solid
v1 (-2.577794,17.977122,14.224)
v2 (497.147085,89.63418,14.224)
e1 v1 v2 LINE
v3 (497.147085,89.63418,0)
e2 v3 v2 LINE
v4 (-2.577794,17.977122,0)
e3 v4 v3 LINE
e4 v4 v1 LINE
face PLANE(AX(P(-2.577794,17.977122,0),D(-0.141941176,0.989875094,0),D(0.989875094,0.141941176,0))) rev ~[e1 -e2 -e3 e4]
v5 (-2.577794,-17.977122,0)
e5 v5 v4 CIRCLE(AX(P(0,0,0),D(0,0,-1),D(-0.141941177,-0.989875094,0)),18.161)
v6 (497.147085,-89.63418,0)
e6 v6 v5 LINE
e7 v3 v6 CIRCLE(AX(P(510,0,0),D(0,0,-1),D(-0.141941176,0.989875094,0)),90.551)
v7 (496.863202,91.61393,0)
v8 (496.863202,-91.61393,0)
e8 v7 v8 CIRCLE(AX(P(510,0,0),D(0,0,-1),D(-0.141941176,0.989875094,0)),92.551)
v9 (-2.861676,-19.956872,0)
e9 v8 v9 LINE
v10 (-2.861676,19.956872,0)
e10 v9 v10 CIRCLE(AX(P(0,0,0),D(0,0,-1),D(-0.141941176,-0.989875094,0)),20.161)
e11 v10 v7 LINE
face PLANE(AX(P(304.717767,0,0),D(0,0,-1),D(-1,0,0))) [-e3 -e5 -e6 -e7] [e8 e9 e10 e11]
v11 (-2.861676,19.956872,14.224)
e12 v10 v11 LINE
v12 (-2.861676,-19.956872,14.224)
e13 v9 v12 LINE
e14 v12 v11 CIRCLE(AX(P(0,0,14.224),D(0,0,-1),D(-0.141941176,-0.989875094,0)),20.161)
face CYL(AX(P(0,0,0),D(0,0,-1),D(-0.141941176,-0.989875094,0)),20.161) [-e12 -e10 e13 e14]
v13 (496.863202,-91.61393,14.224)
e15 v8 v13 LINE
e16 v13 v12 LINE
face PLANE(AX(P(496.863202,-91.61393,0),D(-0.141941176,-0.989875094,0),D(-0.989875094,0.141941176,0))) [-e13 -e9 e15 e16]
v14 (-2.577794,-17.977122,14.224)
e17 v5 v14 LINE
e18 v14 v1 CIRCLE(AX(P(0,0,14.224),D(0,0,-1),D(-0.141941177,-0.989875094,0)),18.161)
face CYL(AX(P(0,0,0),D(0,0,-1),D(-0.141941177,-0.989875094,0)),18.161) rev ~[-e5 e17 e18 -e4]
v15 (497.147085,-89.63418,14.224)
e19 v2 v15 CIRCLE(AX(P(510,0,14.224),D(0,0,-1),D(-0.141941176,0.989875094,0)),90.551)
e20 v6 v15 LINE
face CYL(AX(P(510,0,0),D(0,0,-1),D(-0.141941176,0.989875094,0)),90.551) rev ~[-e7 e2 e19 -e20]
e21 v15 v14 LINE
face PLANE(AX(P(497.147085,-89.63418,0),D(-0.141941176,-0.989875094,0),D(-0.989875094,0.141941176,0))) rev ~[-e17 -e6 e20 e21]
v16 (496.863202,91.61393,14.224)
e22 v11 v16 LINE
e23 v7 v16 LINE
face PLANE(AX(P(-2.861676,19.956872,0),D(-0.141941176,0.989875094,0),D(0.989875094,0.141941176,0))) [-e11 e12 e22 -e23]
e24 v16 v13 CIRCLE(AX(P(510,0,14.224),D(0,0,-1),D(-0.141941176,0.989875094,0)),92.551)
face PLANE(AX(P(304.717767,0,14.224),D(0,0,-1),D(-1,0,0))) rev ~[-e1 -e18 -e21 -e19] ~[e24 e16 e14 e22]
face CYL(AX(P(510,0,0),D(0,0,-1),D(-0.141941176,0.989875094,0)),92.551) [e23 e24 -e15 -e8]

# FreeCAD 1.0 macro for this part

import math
import FreeCAD as App
import Part
import Sketcher
Q = App.Units.Quantity

doc = App.newDocument("Part")
body = doc.addObject("PartDesign::Body", "Body")

# Sketch on XY plane
sketch1 = body.newObject("Sketcher::SketchObject", "Sketch")
sketch1.AttachmentSupport = (doc.getObject("XY_Plane"), [""])
sketch1.MapMode = "FlatFace"
sketch1.addGeometry(Part.LineSegment(App.Vector(-3, -20, 0), App.Vector(497, -92, 0)), False)
sketch1.addGeometry(Part.ArcOfCircle(Part.Circle(App.Vector(510, 0, 0), App.Vector(0, 0, 1), 93), math.radians(-98), math.radians(98)), False)
sketch1.addGeometry(Part.LineSegment(App.Vector(497, 92, 0), App.Vector(-3, 20, 0)), False)
sketch1.addGeometry(Part.ArcOfCircle(Part.Circle(App.Vector(0, 0, 0), App.Vector(0, 0, 1), 20), math.radians(98), math.radians(262)), False)
sketch1.addGeometry(Part.LineSegment(App.Vector(497, -90, 0), App.Vector(-3, -18, 0)), False)
sketch1.addGeometry(Part.ArcOfCircle(Part.Circle(App.Vector(0, 0, 0), App.Vector(0, 0, 1), 18), math.radians(98), math.radians(262)), False)
sketch1.addGeometry(Part.LineSegment(App.Vector(-3, 18, 0), App.Vector(497, 90, 0)), False)
sketch1.addGeometry(Part.ArcOfCircle(Part.Circle(App.Vector(510, 0, 0), App.Vector(0, 0, 1), 91), math.radians(-98), math.radians(98)), False)
sketch1.addConstraint(Sketcher.Constraint("Tangent", 0, 2, 1, 1))
sketch1.addConstraint(Sketcher.Constraint("Tangent", 1, 2, 2, 1))
sketch1.addConstraint(Sketcher.Constraint("Tangent", 2, 2, 3, 1))
sketch1.addConstraint(Sketcher.Constraint("Tangent", 3, 2, 0, 1))
sketch1.addConstraint(Sketcher.Constraint("Tangent", 4, 2, 5, 2))
sketch1.addConstraint(Sketcher.Constraint("Tangent", 5, 1, 6, 1))
sketch1.addConstraint(Sketcher.Constraint("Tangent", 6, 2, 7, 2))
sketch1.addConstraint(Sketcher.Constraint("Tangent", 7, 1, 4, 1))
sketch1.addConstraint(Sketcher.Constraint("Coincident", 3, 3, -1, 1))
sketch1.addConstraint(Sketcher.Constraint("Coincident", 5, 3, -1, 1))
sketch1.addConstraint(Sketcher.Constraint("Coincident", 7, 3, 1, 3))
sketch1.addConstraint(Sketcher.Constraint("PointOnObject", 1, 3, -1))
sketch1.addConstraint(Sketcher.Constraint("Parallel", 0, 4))
sketch1.addConstraint(Sketcher.Constraint("Radius", 5, Q("0.715 in")))
sketch1.addConstraint(Sketcher.Constraint("Radius", 7, Q("3.565 in")))
sketch1.addConstraint(Sketcher.Constraint("Radius", 1, Q("92.551 mm")))
sketch1.addConstraint(Sketcher.Constraint("Distance", 0, Q("504.836298 mm")))
pad1 = body.newObject("PartDesign::Pad", "Pad")
pad1.Profile = sketch1
pad1.Length = Q("0.56 in")

doc.recompute()
